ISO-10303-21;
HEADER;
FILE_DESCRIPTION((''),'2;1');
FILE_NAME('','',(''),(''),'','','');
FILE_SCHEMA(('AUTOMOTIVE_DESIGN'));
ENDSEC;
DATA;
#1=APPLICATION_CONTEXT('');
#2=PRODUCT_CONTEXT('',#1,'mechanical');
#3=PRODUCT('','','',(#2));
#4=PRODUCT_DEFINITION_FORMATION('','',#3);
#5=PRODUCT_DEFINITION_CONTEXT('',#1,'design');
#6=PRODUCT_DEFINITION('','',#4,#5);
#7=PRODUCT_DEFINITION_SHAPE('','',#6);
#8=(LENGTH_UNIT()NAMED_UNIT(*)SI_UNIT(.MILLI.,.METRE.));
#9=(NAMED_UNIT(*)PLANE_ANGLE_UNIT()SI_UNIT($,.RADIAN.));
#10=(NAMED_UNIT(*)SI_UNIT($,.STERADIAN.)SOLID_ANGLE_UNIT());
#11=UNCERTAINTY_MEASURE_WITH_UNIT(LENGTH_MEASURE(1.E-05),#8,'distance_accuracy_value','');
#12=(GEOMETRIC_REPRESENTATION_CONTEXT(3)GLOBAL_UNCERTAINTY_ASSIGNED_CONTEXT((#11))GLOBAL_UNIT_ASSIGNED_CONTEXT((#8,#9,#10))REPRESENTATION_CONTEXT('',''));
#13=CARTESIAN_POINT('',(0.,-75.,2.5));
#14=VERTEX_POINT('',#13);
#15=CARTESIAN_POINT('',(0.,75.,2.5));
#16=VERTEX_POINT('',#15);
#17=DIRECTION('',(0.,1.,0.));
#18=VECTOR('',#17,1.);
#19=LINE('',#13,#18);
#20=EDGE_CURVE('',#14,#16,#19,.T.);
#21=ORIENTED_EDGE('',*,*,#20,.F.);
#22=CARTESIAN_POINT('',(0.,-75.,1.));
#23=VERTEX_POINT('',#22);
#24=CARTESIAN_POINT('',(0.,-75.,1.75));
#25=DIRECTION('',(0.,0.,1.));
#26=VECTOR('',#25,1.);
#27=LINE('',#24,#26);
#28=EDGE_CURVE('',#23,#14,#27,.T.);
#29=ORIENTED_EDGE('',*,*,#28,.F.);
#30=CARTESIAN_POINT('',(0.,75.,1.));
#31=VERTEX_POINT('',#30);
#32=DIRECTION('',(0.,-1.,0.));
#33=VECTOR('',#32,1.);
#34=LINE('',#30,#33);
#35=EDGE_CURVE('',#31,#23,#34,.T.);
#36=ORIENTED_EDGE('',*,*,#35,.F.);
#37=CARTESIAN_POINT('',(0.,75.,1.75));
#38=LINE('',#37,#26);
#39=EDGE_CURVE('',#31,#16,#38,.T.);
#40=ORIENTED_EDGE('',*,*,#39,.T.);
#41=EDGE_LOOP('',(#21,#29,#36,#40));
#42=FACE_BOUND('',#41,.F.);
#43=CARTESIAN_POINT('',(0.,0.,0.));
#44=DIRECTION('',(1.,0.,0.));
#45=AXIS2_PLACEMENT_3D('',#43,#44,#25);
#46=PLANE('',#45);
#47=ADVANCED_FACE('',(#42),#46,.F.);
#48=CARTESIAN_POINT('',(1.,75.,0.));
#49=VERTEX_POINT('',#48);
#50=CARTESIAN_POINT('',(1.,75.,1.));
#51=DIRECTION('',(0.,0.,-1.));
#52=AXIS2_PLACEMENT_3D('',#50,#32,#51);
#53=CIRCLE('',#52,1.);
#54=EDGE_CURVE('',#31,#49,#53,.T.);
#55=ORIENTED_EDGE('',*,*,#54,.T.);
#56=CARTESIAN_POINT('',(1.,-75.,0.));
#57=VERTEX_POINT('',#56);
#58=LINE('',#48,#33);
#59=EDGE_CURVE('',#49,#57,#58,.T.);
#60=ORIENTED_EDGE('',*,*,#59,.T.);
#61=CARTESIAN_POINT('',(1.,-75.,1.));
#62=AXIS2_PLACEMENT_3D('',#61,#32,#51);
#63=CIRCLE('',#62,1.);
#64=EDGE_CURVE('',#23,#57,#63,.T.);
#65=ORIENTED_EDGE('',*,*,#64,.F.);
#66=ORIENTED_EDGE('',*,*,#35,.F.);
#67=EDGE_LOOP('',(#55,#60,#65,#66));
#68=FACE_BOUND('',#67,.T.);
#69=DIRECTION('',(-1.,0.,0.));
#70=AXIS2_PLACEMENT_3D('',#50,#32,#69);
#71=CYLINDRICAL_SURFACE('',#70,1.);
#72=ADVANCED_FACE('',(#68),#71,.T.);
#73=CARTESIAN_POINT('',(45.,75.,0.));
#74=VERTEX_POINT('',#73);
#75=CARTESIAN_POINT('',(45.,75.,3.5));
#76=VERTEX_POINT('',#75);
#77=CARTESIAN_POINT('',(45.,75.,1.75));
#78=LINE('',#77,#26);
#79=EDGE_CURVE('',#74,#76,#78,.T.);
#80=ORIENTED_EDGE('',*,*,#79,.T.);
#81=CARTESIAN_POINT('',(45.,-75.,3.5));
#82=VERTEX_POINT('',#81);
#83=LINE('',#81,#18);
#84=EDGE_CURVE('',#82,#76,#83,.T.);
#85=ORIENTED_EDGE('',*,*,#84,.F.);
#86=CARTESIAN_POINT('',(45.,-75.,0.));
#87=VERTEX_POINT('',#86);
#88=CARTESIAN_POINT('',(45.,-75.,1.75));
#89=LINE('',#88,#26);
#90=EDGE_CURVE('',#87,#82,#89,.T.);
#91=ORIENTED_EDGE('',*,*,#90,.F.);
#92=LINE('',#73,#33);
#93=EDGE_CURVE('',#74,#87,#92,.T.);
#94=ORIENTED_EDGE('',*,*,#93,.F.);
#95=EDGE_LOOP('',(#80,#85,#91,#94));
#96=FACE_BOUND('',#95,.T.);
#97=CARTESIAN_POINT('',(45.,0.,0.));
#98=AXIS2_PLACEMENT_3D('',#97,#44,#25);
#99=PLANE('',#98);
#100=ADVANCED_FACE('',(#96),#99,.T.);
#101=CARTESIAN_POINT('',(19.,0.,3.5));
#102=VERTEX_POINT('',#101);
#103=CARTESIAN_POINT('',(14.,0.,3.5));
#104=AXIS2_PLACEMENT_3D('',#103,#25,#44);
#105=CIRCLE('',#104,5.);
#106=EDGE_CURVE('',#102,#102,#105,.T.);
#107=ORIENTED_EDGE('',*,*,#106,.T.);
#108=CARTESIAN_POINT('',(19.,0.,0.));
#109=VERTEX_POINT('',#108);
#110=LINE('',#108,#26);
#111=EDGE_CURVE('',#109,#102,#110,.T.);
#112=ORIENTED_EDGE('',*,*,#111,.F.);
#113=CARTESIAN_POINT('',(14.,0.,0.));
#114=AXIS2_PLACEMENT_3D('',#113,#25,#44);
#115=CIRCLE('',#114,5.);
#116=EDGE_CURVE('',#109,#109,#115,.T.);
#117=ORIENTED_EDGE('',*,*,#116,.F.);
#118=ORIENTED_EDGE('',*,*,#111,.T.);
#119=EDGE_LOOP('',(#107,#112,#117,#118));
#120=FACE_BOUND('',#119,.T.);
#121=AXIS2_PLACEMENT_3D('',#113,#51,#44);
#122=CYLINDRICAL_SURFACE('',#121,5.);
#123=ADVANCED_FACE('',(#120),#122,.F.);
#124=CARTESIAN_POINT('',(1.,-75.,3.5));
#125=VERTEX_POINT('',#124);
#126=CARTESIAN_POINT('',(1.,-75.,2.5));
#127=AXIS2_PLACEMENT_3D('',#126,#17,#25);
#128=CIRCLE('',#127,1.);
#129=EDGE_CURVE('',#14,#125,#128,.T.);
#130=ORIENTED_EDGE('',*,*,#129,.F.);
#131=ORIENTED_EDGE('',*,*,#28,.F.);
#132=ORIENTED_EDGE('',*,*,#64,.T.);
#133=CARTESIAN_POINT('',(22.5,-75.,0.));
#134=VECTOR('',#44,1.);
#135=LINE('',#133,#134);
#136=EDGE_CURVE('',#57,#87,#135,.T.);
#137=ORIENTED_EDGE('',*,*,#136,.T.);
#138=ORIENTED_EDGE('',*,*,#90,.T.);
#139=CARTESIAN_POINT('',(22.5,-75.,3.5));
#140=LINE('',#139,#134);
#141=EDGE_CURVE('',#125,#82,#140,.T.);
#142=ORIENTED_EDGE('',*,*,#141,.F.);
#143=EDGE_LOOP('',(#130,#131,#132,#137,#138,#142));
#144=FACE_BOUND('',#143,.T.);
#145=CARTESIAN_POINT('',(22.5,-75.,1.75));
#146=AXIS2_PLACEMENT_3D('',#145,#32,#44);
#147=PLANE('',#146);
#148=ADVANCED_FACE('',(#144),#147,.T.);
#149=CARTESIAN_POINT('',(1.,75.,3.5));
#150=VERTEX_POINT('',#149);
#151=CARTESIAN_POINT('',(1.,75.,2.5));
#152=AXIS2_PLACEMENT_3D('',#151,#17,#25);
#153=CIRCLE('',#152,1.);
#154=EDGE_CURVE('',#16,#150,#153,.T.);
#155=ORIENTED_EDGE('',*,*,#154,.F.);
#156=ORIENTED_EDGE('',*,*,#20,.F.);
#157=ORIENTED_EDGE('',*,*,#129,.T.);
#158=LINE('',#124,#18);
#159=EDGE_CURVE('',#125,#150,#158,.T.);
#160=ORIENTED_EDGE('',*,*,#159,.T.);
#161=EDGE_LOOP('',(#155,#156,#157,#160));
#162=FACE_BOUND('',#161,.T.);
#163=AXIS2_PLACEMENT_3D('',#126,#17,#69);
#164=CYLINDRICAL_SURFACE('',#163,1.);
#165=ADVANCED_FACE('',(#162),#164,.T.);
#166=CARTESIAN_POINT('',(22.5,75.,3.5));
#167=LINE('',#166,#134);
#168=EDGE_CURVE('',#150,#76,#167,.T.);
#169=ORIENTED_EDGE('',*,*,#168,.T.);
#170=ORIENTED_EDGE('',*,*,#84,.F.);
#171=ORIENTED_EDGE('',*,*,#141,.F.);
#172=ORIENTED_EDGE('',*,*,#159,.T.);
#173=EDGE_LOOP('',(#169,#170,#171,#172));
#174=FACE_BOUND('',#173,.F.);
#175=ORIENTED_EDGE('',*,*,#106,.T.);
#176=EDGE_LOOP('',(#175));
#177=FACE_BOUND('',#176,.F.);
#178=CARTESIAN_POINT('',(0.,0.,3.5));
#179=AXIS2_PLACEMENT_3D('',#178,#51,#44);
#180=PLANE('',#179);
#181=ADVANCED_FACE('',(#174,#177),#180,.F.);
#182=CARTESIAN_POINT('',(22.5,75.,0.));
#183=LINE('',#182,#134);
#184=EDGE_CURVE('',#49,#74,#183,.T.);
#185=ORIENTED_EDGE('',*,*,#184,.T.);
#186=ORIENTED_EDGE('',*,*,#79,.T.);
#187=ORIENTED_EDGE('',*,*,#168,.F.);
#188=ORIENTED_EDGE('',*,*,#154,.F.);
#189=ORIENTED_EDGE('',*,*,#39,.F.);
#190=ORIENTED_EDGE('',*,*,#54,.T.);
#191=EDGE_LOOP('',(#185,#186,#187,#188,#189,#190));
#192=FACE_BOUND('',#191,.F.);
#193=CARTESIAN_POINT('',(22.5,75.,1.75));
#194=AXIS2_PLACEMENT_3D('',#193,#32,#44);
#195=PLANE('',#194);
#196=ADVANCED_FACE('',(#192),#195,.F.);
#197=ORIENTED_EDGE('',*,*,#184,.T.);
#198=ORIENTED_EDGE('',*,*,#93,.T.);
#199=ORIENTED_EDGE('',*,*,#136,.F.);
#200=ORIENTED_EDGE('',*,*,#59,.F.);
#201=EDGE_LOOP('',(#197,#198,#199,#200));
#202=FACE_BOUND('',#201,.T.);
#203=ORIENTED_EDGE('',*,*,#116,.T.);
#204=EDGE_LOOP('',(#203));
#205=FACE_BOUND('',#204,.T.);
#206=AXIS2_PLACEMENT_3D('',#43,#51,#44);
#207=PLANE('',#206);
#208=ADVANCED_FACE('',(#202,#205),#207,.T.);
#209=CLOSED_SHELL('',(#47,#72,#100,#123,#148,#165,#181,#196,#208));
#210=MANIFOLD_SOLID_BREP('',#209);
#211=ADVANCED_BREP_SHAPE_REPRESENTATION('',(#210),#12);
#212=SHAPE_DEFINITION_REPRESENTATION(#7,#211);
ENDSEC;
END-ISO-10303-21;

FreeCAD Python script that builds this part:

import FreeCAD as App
import Part
import Sketcher
from FreeCAD import Vector


def edges_at(feature, points):
    """Names of the edges that pass closest to the given points."""
    edges = feature.Shape.Edges
    near = lambda p: min(range(len(edges)), key=lambda i: edges[i].distToShape(Part.Vertex(*p))[0])
    return sorted({f"Edge{near(p) + 1}" for p in points})

doc = App.newDocument("Part")
body = doc.addObject("PartDesign::Body", "Body")

# Sketch on XZ plane
sketch1 = body.newObject("Sketcher::SketchObject", "Sketch")
sketch1.AttachmentSupport = (doc.getObject("XZ_Plane"), [""])
sketch1.MapMode = "FlatFace"
sketch1.addGeometry([
    Part.LineSegment(Vector(0, 3.5, 0), Vector(0, 0, 0)),
    Part.LineSegment(Vector(0, 0, 0), Vector(45, 0, 0)),
    Part.LineSegment(Vector(45, 0, 0), Vector(45, 3.5, 0)),
    Part.LineSegment(Vector(45, 3.5, 0), Vector(0, 3.5, 0)),
], False)
sketch1.addConstraint([
    Sketcher.Constraint("Coincident", 0, 2, 1, 1),
    Sketcher.Constraint("Coincident", 1, 2, 2, 1),
    Sketcher.Constraint("Coincident", 2, 2, 3, 1),
    Sketcher.Constraint("Coincident", 3, 2, 0, 1),
    Sketcher.Constraint("Vertical", 0),
    Sketcher.Constraint("Horizontal", 1),
    Sketcher.Constraint("Vertical", 2),
    Sketcher.Constraint("Horizontal", 3),
    Sketcher.Constraint("Coincident", 0, 2, -1, 1),
    Sketcher.Constraint("DistanceX", 1, 1, 1, 2, 45.0),
    Sketcher.Constraint("DistanceY", 0, 2, 0, 1, 3.5),
])
pad1 = body.newObject("PartDesign::Pad", "Pad")
pad1.Profile = sketch1
pad1.Length = 150
pad1.Midplane = True

# Sketch on XY plane
sketch2 = body.newObject("Sketcher::SketchObject", "Sketch001")
sketch2.AttachmentSupport = (doc.getObject("XY_Plane"), [""])
sketch2.MapMode = "FlatFace"
sketch2.addGeometry(Part.Circle(Vector(14, 0, 0), Vector(0, 0, 1), 5), False)
sketch2.addConstraint([
    Sketcher.Constraint("PointOnObject", 0, 3, -1),
    Sketcher.Constraint("Diameter", 0, 10.0),
    Sketcher.Constraint("DistanceX", -1, 1, 0, 3, 14.0),
])
pocket1 = body.newObject("PartDesign::Pocket", "Pocket")
pocket1.Profile = sketch2
pocket1.Type = "ThroughAll"
pocket1.Reversed = True
doc.recompute()

fillet = body.newObject("PartDesign::Fillet", "Fillet")
fillet.Base = (pocket1, edges_at(pocket1, [(0, 0, 3.5), (0, 0, 0)]))
fillet.Radius = 1

doc.recompute()
